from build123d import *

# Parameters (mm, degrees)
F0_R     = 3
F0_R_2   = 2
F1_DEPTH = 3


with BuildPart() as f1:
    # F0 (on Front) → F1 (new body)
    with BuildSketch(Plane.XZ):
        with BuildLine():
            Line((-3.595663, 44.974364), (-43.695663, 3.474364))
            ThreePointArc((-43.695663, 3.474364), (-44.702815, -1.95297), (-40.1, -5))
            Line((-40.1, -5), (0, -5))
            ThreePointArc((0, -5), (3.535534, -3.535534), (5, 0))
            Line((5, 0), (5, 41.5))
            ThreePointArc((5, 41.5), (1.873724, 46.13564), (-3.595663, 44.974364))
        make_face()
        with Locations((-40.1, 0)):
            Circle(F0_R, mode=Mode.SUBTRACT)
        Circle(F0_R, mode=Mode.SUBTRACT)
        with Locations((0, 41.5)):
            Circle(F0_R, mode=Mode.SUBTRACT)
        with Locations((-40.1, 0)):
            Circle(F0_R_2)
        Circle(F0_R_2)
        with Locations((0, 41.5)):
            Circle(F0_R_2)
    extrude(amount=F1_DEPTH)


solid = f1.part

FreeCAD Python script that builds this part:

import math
import FreeCAD as App
import Part
import Sketcher
from FreeCAD import Vector
Q = App.Units.Quantity

doc = App.newDocument("Part")
body = doc.addObject("PartDesign::Body", "Body")
body.AllowCompound = True

# Sketch on XZ plane
sketch1 = body.newObject("Sketcher::SketchObject", "Sketch")
sketch1.AttachmentSupport = (doc.getObject("XZ_Plane"), [""])
sketch1.MapMode = "FlatFace"
sketch1.addGeometry([
    Part.LineSegment(Vector(-3.595663, 44.974364, 0), Vector(-43.695663, 3.474364, 0)),  # 0
    Part.ArcOfCircle(Part.Circle(Vector(-40.1, 0, 0), Vector(0, 0, 1), 5), math.radians(135.982917), math.radians(269.999998)),  # 1
    Part.LineSegment(Vector(-40.1, -5, 0), Vector(0, -5, 0)),  # 2
    Part.ArcOfCircle(Part.Circle(Vector(0, 0, 0), Vector(0, 0, 1), 5), math.radians(-90.000004), math.radians(0.000004)),  # 3
    Part.LineSegment(Vector(5, 0, 0), Vector(5, 41.5, 0)),  # 4
    Part.ArcOfCircle(Part.Circle(Vector(0, 41.5, 0), Vector(0, 0, 1), 5), math.radians(-0.000001), math.radians(135.982918)),  # 5
    Part.Circle(Vector(-40.1, 0, 0), Vector(0, 0, 1), 3),  # 6
    Part.Circle(Vector(0, 0, 0), Vector(0, 0, 1), 3),  # 7
    Part.Circle(Vector(0, 41.5, 0), Vector(0, 0, 1), 3),  # 8
    Part.Circle(Vector(-40.1, 0, 0), Vector(0, 0, 1), 2),  # 9
    Part.Circle(Vector(0, 0, 0), Vector(0, 0, 1), 2),  # 10
    Part.Circle(Vector(0, 41.5, 0), Vector(0, 0, 1), 2),  # 11
], False)
sketch1.addConstraint([
    Sketcher.Constraint("Tangent", 0, 2, 1, 1),
    Sketcher.Constraint("Tangent", 1, 2, 2, 1),
    Sketcher.Constraint("Tangent", 2, 2, 3, 1),
    Sketcher.Constraint("Tangent", 3, 2, 4, 1),
    Sketcher.Constraint("Tangent", 4, 2, 5, 1),
    Sketcher.Constraint("Tangent", 5, 2, 0, 1),
    Sketcher.Constraint("Horizontal", 2),
    Sketcher.Constraint("Vertical", 4),
    Sketcher.Constraint("Coincident", 3, 3, -1, 1),
    Sketcher.Constraint("Coincident", 7, 3, -1, 1),
    Sketcher.Constraint("Coincident", 10, 3, -1, 1),
    Sketcher.Constraint("Coincident", 6, 3, 1, 3),
    Sketcher.Constraint("Coincident", 8, 3, 5, 3),
    Sketcher.Constraint("Coincident", 9, 3, 1, 3),
    Sketcher.Constraint("Coincident", 11, 3, 5, 3),
    Sketcher.Constraint("Equal", 1, 3),
    Sketcher.Constraint("Equal", 3, 5),
    Sketcher.Constraint("Equal", 6, 7),
    Sketcher.Constraint("Equal", 7, 8),
    Sketcher.Constraint("Equal", 9, 10),
    Sketcher.Constraint("Equal", 10, 11),
    Sketcher.Constraint("Diameter", 6, Q("6 mm")),
    Sketcher.Constraint("Diameter", 9, Q("4 mm")),
    Sketcher.Constraint("Radius", 1, Q("5 mm")),
    Sketcher.Constraint("DistanceX", 2, 1, 2, 2, Q("40.1 mm")),
    Sketcher.Constraint("DistanceY", 4, 1, 4, 2, Q("41.5 mm")),
])
pad1 = body.newObject("PartDesign::Pad", "Pad")
pad1.Profile = sketch1
pad1.Length = 3

doc.recompute()
